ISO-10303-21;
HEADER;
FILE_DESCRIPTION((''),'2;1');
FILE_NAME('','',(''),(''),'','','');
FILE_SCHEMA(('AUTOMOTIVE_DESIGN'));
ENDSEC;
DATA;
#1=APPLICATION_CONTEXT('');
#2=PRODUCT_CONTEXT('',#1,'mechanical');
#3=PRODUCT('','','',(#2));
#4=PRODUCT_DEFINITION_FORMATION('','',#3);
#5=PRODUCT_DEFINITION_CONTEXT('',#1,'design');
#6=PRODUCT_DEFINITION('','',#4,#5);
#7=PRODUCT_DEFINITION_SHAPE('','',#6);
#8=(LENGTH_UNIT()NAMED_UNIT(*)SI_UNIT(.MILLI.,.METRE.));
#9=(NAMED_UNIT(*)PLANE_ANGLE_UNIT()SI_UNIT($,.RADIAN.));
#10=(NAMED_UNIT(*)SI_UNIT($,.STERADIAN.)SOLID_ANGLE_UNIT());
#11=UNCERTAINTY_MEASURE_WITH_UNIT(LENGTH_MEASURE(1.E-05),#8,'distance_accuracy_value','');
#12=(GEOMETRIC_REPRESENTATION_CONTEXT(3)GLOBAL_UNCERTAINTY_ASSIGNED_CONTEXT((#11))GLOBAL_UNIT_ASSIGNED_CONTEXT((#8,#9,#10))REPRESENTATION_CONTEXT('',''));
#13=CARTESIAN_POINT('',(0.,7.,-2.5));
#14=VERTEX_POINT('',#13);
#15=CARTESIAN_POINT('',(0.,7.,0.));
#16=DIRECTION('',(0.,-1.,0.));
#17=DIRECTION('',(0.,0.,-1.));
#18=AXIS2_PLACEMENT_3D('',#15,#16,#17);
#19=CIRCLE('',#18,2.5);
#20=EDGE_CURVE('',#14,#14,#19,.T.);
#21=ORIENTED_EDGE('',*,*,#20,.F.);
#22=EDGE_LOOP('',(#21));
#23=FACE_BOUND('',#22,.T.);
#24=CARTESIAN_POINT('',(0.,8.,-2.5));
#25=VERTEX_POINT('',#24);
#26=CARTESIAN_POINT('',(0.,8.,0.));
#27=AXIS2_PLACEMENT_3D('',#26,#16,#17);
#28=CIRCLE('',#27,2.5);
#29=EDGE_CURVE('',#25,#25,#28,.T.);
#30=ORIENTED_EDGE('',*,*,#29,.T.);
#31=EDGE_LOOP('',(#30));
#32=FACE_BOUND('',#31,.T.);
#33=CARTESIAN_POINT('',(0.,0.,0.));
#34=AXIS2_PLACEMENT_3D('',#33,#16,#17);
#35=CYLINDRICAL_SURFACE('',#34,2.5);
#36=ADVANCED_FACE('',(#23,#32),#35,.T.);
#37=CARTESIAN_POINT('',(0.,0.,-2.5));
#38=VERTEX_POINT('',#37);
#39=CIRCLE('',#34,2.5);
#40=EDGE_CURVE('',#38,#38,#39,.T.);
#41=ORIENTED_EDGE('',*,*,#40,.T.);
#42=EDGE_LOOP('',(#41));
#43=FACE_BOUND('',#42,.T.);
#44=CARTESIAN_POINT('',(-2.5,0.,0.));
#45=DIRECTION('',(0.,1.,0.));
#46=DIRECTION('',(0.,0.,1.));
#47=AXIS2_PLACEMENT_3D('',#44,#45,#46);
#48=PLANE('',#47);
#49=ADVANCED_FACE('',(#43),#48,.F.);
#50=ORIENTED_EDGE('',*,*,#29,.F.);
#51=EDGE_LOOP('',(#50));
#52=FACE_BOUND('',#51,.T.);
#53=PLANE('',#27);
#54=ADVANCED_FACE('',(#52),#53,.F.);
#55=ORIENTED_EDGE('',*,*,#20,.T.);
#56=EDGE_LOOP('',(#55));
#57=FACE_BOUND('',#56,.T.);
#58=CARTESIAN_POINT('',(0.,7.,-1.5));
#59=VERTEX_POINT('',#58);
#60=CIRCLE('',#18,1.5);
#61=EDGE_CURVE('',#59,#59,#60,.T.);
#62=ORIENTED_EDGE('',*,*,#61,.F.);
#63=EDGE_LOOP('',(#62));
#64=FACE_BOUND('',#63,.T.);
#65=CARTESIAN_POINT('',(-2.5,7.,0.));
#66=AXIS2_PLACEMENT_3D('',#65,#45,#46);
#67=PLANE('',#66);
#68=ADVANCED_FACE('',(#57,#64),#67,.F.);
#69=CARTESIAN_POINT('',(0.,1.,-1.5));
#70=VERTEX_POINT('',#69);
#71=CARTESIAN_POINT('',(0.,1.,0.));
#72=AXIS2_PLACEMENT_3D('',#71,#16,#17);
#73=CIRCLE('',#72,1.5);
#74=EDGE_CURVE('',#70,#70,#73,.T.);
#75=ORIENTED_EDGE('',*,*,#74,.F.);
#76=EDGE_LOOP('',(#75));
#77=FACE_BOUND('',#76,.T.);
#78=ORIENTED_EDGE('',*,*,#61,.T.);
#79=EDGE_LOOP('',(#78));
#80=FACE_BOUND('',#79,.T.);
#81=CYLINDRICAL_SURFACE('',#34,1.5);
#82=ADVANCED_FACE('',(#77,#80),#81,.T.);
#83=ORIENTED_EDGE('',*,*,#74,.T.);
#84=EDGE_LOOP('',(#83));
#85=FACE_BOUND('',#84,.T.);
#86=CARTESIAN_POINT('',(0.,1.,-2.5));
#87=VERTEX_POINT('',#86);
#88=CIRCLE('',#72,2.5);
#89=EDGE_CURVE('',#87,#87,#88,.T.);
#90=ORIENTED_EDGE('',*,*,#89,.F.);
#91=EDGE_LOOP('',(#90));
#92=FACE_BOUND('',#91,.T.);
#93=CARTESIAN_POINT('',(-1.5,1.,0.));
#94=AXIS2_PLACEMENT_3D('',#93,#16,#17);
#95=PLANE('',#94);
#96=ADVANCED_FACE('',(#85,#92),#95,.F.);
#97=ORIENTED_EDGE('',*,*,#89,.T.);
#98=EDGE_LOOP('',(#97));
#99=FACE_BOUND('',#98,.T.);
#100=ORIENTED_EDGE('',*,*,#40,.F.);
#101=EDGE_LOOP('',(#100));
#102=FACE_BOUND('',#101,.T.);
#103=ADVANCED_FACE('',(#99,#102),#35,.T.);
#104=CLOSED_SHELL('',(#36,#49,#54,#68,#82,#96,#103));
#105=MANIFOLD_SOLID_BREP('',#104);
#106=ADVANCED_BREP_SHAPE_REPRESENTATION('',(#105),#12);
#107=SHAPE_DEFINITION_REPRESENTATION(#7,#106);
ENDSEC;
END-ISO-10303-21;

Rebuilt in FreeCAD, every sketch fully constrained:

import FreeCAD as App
import Part
import Sketcher

V = App.Vector
Q = App.Units.Quantity

doc = App.newDocument("Part")
params = doc.addObject("Spreadsheet::Sheet", "Params")
for row, (alias, value) in enumerate([
    ("sketch1_width", "1 mm"),
    ("sketch1_height", "8 mm"),
    ("sketch1_width2", "2.5 mm"),
    ("revolution_angle", "360 deg"),
], start=1):
    params.set(f"A{row}", alias)
    params.set(f"B{row}", "=" + value)
    params.setAlias(f"B{row}", alias)

body = doc.addObject("PartDesign::Body", "Body")

# Sketch on XY plane
sketch1 = body.newObject("Sketcher::SketchObject", "Sketch")
sketch1.AttachmentSupport = (doc.getObject("XY_Plane"), [""])
sketch1.MapMode = "FlatFace"
sketch1.addGeometry(Part.LineSegment(V(0, 0, 0), V(0, 8, 0)), False)
sketch1.addGeometry(Part.LineSegment(V(0, 8, 0), V(-2.5, 8, 0)), False)
sketch1.addGeometry(Part.LineSegment(V(-2.5, 8, 0), V(-2.5, 7, 0)), False)
sketch1.addGeometry(Part.LineSegment(V(-2.5, 7, 0), V(-1.5, 7, 0)), False)
sketch1.addGeometry(Part.LineSegment(V(-1.5, 7, 0), V(-1.5, 1, 0)), False)
sketch1.addGeometry(Part.LineSegment(V(-1.5, 1, 0), V(-2.5, 1, 0)), False)
sketch1.addGeometry(Part.LineSegment(V(-2.5, 1, 0), V(-2.5, 0, 0)), False)
sketch1.addGeometry(Part.LineSegment(V(-2.5, 0, 0), V(0, 0, 0)), False)
sketch1.addConstraint(Sketcher.Constraint("Coincident", 0, 2, 1, 1))
sketch1.addConstraint(Sketcher.Constraint("Coincident", 1, 2, 2, 1))
sketch1.addConstraint(Sketcher.Constraint("Coincident", 2, 2, 3, 1))
sketch1.addConstraint(Sketcher.Constraint("Coincident", 3, 2, 4, 1))
sketch1.addConstraint(Sketcher.Constraint("Coincident", 4, 2, 5, 1))
sketch1.addConstraint(Sketcher.Constraint("Coincident", 5, 2, 6, 1))
sketch1.addConstraint(Sketcher.Constraint("Coincident", 6, 2, 7, 1))
sketch1.addConstraint(Sketcher.Constraint("Coincident", 7, 2, 0, 1))
sketch1.addConstraint(Sketcher.Constraint("Vertical", 0))
sketch1.addConstraint(Sketcher.Constraint("Horizontal", 1))
sketch1.addConstraint(Sketcher.Constraint("Vertical", 2))
sketch1.addConstraint(Sketcher.Constraint("Horizontal", 3))
sketch1.addConstraint(Sketcher.Constraint("Vertical", 4))
sketch1.addConstraint(Sketcher.Constraint("Horizontal", 5))
sketch1.addConstraint(Sketcher.Constraint("Vertical", 6))
sketch1.addConstraint(Sketcher.Constraint("Horizontal", 7))
sketch1.addConstraint(Sketcher.Constraint("Coincident", 7, 2, -1, 1))
sketch1.addConstraint(Sketcher.Constraint("Vertical", 2, 2, 5, 2))
sketch1.addConstraint(Sketcher.Constraint("Equal", 5, 2))
sketch1.addConstraint(Sketcher.Constraint("Equal", 2, 6))
sketch1.addConstraint(Sketcher.Constraint("DistanceX", 3, 1, 3, 2, Q("1 mm")))
sketch1.addConstraint(Sketcher.Constraint("DistanceY", 0, 1, 0, 2, Q("8 mm")))
sketch1.addConstraint(Sketcher.Constraint("DistanceX", 1, 2, 1, 1, Q("2.5 mm")))
sketch1.setExpression("Constraints[20]", "Params.sketch1_width")
sketch1.setExpression("Constraints[21]", "Params.sketch1_height")
sketch1.setExpression("Constraints[22]", "Params.sketch1_width2")
revolution = body.newObject("PartDesign::Revolution", "Revolution")
revolution.Profile = sketch1
revolution.ReferenceAxis = (sketch1, ["V_Axis"])
revolution.setExpression("Angle", "Params.revolution_angle")

doc.recompute()
